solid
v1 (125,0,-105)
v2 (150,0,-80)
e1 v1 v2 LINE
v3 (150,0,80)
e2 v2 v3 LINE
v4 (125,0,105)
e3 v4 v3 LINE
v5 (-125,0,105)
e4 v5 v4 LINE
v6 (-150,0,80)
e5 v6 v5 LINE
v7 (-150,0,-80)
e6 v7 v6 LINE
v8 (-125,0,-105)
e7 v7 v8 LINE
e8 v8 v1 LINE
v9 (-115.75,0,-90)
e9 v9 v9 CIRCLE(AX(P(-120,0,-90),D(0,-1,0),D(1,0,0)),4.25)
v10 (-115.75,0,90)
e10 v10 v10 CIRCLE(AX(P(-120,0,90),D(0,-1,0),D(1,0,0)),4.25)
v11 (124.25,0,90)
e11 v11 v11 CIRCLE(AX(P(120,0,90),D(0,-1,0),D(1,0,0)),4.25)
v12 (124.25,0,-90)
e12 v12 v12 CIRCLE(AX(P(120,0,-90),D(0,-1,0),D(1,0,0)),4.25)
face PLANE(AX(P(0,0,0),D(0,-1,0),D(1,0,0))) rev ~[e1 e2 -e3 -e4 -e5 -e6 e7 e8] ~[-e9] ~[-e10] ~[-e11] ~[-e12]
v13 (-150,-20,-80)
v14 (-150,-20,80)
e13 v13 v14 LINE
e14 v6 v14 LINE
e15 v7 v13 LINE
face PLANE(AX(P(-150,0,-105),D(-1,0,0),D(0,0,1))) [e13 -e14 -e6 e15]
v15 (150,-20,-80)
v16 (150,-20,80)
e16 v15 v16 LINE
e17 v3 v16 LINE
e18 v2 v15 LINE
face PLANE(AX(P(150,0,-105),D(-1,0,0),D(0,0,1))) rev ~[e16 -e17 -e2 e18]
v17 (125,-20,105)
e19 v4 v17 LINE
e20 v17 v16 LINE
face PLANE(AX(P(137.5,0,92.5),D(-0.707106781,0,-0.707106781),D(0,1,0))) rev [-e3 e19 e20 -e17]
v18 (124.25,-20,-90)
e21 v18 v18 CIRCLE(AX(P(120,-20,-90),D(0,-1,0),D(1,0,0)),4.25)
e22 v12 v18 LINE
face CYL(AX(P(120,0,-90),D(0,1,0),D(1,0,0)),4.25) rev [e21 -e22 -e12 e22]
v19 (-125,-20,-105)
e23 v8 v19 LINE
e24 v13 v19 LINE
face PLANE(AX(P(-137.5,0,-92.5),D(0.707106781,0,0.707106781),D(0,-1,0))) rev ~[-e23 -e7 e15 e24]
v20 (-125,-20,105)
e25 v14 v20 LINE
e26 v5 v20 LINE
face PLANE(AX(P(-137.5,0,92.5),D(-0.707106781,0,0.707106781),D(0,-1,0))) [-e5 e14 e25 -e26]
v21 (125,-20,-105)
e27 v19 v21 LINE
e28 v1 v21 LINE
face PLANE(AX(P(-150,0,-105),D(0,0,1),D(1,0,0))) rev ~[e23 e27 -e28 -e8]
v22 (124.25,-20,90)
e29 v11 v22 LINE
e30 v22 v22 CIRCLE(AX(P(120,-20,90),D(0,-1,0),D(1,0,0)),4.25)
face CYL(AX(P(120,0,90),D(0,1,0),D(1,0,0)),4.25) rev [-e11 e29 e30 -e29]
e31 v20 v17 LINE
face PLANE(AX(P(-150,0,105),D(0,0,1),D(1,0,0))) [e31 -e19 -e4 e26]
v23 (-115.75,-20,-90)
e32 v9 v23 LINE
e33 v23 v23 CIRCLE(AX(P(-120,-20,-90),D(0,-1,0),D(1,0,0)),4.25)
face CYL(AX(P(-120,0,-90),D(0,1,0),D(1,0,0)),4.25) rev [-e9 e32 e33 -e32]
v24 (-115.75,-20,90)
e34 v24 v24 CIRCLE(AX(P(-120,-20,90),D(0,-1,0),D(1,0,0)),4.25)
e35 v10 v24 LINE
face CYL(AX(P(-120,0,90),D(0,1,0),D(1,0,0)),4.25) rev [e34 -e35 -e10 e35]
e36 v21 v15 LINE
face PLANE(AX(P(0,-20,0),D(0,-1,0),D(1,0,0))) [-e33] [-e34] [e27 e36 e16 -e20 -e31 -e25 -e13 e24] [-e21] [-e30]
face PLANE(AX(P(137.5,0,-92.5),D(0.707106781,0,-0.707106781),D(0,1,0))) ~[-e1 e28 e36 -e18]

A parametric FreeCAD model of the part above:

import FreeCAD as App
import Part
import Sketcher

V = App.Vector


def edges_at(feature, points):
    """Names of the edges that pass closest to the given points."""
    edges = feature.Shape.Edges
    near = lambda p: min(range(len(edges)), key=lambda i: edges[i].distToShape(Part.Vertex(*p))[0])
    return sorted({f"Edge{near(p) + 1}" for p in points})


def add_polygon(sketch, points):
    """Adds a closed chain of lines whose ends are joined by coincident constraints."""
    first, n = sketch.GeometryCount, len(points)
    for a, b in zip(points, points[1:] + points[:1]):
        sketch.addGeometry(Part.LineSegment(App.Vector(*a, 0), App.Vector(*b, 0)), False)
    for i in range(n):
        sketch.addConstraint(Sketcher.Constraint("Coincident", first + i, 2, first + (i + 1) % n, 1))

doc = App.newDocument("Part")
params = doc.addObject("Spreadsheet::Sheet", "Params")
for row, (alias, value) in enumerate([
    ("sketch1_diameter", "8.5 mm"),
    ("sketch1_width", "300 mm"),
    ("sketch1_height", "210 mm"),
    ("pad1_length", "20 mm"),
    ("chamfer_size", "25 mm"),
], start=1):
    params.set(f"A{row}", alias)
    params.set(f"B{row}", "=" + value)
    params.setAlias(f"B{row}", alias)

body = doc.addObject("PartDesign::Body", "Body")

# Sketch on XZ plane
sketch1 = body.newObject("Sketcher::SketchObject", "Sketch")
sketch1.AttachmentSupport = (doc.getObject("XZ_Plane"), [""])
sketch1.MapMode = "FlatFace"
add_polygon(sketch1, [(-150, 105), (-150, -105), (150, -105), (150, 105)])  # lines 0-3
sketch1.addGeometry(Part.Circle(V(-120, -90, 0), V(0, 0, 1), 4.25), False)  # 4
sketch1.addGeometry(Part.Circle(V(120, -90, 0), V(0, 0, 1), 4.25), False)  # 5
sketch1.addGeometry(Part.Circle(V(-120, 90, 0), V(0, 0, 1), 4.25), False)  # 6
sketch1.addGeometry(Part.Circle(V(120, 90, 0), V(0, 0, 1), 4.25), False)  # 7
sketch1.addConstraint(Sketcher.Constraint("Vertical", 0))
sketch1.addConstraint(Sketcher.Constraint("Horizontal", 1))
sketch1.addConstraint(Sketcher.Constraint("Vertical", 2))
sketch1.addConstraint(Sketcher.Constraint("Horizontal", 3))
sketch1.addConstraint(Sketcher.Constraint("Equal", 4, 5))
sketch1.addConstraint(Sketcher.Constraint("Equal", 5, 6))
sketch1.addConstraint(Sketcher.Constraint("Equal", 6, 7))
sketch1.addConstraint(Sketcher.Constraint("Symmetric", 5, 3, 6, 3, -1, 1))
sketch1.addConstraint(Sketcher.Constraint("Symmetric", 4, 3, 7, 3, -1, 1))
sketch1.addConstraint(Sketcher.Constraint("Symmetric", 0, 2, 2, 2, -1, 1))
sketch1.addConstraint(Sketcher.Constraint("Symmetric", 4, 3, 5, 3, -2))
sketch1.addConstraint(Sketcher.Constraint("Diameter", 4, 8.5))
sketch1.addConstraint(Sketcher.Constraint("DistanceX", 1, 1, 1, 2, 300.0))
sketch1.addConstraint(Sketcher.Constraint("DistanceY", 0, 2, 0, 1, 210.0))
sketch1.addConstraint(Sketcher.Constraint("DistanceX", 4, 3, -1, 1, 120.0))
sketch1.addConstraint(Sketcher.Constraint("DistanceY", 4, 3, -1, 1, 90.0))
sketch1.setExpression("Constraints[15]", "Params.sketch1_diameter")
sketch1.setExpression("Constraints[16]", "Params.sketch1_width")
sketch1.setExpression("Constraints[17]", "Params.sketch1_height")
pad1 = body.newObject("PartDesign::Pad", "Pad")
pad1.Profile = sketch1
pad1.setExpression("Length", "Params.pad1_length")
doc.recompute()

chamfer = body.newObject("PartDesign::Chamfer", "Chamfer")
chamfer.Base = (pad1, edges_at(pad1, [
    (150, -10, 105),
    (150, -10, -105),
    (-150, -10, -105),
    (-150, -10, 105),
]))
chamfer.setExpression("Size", "Params.chamfer_size")

doc.recompute()
